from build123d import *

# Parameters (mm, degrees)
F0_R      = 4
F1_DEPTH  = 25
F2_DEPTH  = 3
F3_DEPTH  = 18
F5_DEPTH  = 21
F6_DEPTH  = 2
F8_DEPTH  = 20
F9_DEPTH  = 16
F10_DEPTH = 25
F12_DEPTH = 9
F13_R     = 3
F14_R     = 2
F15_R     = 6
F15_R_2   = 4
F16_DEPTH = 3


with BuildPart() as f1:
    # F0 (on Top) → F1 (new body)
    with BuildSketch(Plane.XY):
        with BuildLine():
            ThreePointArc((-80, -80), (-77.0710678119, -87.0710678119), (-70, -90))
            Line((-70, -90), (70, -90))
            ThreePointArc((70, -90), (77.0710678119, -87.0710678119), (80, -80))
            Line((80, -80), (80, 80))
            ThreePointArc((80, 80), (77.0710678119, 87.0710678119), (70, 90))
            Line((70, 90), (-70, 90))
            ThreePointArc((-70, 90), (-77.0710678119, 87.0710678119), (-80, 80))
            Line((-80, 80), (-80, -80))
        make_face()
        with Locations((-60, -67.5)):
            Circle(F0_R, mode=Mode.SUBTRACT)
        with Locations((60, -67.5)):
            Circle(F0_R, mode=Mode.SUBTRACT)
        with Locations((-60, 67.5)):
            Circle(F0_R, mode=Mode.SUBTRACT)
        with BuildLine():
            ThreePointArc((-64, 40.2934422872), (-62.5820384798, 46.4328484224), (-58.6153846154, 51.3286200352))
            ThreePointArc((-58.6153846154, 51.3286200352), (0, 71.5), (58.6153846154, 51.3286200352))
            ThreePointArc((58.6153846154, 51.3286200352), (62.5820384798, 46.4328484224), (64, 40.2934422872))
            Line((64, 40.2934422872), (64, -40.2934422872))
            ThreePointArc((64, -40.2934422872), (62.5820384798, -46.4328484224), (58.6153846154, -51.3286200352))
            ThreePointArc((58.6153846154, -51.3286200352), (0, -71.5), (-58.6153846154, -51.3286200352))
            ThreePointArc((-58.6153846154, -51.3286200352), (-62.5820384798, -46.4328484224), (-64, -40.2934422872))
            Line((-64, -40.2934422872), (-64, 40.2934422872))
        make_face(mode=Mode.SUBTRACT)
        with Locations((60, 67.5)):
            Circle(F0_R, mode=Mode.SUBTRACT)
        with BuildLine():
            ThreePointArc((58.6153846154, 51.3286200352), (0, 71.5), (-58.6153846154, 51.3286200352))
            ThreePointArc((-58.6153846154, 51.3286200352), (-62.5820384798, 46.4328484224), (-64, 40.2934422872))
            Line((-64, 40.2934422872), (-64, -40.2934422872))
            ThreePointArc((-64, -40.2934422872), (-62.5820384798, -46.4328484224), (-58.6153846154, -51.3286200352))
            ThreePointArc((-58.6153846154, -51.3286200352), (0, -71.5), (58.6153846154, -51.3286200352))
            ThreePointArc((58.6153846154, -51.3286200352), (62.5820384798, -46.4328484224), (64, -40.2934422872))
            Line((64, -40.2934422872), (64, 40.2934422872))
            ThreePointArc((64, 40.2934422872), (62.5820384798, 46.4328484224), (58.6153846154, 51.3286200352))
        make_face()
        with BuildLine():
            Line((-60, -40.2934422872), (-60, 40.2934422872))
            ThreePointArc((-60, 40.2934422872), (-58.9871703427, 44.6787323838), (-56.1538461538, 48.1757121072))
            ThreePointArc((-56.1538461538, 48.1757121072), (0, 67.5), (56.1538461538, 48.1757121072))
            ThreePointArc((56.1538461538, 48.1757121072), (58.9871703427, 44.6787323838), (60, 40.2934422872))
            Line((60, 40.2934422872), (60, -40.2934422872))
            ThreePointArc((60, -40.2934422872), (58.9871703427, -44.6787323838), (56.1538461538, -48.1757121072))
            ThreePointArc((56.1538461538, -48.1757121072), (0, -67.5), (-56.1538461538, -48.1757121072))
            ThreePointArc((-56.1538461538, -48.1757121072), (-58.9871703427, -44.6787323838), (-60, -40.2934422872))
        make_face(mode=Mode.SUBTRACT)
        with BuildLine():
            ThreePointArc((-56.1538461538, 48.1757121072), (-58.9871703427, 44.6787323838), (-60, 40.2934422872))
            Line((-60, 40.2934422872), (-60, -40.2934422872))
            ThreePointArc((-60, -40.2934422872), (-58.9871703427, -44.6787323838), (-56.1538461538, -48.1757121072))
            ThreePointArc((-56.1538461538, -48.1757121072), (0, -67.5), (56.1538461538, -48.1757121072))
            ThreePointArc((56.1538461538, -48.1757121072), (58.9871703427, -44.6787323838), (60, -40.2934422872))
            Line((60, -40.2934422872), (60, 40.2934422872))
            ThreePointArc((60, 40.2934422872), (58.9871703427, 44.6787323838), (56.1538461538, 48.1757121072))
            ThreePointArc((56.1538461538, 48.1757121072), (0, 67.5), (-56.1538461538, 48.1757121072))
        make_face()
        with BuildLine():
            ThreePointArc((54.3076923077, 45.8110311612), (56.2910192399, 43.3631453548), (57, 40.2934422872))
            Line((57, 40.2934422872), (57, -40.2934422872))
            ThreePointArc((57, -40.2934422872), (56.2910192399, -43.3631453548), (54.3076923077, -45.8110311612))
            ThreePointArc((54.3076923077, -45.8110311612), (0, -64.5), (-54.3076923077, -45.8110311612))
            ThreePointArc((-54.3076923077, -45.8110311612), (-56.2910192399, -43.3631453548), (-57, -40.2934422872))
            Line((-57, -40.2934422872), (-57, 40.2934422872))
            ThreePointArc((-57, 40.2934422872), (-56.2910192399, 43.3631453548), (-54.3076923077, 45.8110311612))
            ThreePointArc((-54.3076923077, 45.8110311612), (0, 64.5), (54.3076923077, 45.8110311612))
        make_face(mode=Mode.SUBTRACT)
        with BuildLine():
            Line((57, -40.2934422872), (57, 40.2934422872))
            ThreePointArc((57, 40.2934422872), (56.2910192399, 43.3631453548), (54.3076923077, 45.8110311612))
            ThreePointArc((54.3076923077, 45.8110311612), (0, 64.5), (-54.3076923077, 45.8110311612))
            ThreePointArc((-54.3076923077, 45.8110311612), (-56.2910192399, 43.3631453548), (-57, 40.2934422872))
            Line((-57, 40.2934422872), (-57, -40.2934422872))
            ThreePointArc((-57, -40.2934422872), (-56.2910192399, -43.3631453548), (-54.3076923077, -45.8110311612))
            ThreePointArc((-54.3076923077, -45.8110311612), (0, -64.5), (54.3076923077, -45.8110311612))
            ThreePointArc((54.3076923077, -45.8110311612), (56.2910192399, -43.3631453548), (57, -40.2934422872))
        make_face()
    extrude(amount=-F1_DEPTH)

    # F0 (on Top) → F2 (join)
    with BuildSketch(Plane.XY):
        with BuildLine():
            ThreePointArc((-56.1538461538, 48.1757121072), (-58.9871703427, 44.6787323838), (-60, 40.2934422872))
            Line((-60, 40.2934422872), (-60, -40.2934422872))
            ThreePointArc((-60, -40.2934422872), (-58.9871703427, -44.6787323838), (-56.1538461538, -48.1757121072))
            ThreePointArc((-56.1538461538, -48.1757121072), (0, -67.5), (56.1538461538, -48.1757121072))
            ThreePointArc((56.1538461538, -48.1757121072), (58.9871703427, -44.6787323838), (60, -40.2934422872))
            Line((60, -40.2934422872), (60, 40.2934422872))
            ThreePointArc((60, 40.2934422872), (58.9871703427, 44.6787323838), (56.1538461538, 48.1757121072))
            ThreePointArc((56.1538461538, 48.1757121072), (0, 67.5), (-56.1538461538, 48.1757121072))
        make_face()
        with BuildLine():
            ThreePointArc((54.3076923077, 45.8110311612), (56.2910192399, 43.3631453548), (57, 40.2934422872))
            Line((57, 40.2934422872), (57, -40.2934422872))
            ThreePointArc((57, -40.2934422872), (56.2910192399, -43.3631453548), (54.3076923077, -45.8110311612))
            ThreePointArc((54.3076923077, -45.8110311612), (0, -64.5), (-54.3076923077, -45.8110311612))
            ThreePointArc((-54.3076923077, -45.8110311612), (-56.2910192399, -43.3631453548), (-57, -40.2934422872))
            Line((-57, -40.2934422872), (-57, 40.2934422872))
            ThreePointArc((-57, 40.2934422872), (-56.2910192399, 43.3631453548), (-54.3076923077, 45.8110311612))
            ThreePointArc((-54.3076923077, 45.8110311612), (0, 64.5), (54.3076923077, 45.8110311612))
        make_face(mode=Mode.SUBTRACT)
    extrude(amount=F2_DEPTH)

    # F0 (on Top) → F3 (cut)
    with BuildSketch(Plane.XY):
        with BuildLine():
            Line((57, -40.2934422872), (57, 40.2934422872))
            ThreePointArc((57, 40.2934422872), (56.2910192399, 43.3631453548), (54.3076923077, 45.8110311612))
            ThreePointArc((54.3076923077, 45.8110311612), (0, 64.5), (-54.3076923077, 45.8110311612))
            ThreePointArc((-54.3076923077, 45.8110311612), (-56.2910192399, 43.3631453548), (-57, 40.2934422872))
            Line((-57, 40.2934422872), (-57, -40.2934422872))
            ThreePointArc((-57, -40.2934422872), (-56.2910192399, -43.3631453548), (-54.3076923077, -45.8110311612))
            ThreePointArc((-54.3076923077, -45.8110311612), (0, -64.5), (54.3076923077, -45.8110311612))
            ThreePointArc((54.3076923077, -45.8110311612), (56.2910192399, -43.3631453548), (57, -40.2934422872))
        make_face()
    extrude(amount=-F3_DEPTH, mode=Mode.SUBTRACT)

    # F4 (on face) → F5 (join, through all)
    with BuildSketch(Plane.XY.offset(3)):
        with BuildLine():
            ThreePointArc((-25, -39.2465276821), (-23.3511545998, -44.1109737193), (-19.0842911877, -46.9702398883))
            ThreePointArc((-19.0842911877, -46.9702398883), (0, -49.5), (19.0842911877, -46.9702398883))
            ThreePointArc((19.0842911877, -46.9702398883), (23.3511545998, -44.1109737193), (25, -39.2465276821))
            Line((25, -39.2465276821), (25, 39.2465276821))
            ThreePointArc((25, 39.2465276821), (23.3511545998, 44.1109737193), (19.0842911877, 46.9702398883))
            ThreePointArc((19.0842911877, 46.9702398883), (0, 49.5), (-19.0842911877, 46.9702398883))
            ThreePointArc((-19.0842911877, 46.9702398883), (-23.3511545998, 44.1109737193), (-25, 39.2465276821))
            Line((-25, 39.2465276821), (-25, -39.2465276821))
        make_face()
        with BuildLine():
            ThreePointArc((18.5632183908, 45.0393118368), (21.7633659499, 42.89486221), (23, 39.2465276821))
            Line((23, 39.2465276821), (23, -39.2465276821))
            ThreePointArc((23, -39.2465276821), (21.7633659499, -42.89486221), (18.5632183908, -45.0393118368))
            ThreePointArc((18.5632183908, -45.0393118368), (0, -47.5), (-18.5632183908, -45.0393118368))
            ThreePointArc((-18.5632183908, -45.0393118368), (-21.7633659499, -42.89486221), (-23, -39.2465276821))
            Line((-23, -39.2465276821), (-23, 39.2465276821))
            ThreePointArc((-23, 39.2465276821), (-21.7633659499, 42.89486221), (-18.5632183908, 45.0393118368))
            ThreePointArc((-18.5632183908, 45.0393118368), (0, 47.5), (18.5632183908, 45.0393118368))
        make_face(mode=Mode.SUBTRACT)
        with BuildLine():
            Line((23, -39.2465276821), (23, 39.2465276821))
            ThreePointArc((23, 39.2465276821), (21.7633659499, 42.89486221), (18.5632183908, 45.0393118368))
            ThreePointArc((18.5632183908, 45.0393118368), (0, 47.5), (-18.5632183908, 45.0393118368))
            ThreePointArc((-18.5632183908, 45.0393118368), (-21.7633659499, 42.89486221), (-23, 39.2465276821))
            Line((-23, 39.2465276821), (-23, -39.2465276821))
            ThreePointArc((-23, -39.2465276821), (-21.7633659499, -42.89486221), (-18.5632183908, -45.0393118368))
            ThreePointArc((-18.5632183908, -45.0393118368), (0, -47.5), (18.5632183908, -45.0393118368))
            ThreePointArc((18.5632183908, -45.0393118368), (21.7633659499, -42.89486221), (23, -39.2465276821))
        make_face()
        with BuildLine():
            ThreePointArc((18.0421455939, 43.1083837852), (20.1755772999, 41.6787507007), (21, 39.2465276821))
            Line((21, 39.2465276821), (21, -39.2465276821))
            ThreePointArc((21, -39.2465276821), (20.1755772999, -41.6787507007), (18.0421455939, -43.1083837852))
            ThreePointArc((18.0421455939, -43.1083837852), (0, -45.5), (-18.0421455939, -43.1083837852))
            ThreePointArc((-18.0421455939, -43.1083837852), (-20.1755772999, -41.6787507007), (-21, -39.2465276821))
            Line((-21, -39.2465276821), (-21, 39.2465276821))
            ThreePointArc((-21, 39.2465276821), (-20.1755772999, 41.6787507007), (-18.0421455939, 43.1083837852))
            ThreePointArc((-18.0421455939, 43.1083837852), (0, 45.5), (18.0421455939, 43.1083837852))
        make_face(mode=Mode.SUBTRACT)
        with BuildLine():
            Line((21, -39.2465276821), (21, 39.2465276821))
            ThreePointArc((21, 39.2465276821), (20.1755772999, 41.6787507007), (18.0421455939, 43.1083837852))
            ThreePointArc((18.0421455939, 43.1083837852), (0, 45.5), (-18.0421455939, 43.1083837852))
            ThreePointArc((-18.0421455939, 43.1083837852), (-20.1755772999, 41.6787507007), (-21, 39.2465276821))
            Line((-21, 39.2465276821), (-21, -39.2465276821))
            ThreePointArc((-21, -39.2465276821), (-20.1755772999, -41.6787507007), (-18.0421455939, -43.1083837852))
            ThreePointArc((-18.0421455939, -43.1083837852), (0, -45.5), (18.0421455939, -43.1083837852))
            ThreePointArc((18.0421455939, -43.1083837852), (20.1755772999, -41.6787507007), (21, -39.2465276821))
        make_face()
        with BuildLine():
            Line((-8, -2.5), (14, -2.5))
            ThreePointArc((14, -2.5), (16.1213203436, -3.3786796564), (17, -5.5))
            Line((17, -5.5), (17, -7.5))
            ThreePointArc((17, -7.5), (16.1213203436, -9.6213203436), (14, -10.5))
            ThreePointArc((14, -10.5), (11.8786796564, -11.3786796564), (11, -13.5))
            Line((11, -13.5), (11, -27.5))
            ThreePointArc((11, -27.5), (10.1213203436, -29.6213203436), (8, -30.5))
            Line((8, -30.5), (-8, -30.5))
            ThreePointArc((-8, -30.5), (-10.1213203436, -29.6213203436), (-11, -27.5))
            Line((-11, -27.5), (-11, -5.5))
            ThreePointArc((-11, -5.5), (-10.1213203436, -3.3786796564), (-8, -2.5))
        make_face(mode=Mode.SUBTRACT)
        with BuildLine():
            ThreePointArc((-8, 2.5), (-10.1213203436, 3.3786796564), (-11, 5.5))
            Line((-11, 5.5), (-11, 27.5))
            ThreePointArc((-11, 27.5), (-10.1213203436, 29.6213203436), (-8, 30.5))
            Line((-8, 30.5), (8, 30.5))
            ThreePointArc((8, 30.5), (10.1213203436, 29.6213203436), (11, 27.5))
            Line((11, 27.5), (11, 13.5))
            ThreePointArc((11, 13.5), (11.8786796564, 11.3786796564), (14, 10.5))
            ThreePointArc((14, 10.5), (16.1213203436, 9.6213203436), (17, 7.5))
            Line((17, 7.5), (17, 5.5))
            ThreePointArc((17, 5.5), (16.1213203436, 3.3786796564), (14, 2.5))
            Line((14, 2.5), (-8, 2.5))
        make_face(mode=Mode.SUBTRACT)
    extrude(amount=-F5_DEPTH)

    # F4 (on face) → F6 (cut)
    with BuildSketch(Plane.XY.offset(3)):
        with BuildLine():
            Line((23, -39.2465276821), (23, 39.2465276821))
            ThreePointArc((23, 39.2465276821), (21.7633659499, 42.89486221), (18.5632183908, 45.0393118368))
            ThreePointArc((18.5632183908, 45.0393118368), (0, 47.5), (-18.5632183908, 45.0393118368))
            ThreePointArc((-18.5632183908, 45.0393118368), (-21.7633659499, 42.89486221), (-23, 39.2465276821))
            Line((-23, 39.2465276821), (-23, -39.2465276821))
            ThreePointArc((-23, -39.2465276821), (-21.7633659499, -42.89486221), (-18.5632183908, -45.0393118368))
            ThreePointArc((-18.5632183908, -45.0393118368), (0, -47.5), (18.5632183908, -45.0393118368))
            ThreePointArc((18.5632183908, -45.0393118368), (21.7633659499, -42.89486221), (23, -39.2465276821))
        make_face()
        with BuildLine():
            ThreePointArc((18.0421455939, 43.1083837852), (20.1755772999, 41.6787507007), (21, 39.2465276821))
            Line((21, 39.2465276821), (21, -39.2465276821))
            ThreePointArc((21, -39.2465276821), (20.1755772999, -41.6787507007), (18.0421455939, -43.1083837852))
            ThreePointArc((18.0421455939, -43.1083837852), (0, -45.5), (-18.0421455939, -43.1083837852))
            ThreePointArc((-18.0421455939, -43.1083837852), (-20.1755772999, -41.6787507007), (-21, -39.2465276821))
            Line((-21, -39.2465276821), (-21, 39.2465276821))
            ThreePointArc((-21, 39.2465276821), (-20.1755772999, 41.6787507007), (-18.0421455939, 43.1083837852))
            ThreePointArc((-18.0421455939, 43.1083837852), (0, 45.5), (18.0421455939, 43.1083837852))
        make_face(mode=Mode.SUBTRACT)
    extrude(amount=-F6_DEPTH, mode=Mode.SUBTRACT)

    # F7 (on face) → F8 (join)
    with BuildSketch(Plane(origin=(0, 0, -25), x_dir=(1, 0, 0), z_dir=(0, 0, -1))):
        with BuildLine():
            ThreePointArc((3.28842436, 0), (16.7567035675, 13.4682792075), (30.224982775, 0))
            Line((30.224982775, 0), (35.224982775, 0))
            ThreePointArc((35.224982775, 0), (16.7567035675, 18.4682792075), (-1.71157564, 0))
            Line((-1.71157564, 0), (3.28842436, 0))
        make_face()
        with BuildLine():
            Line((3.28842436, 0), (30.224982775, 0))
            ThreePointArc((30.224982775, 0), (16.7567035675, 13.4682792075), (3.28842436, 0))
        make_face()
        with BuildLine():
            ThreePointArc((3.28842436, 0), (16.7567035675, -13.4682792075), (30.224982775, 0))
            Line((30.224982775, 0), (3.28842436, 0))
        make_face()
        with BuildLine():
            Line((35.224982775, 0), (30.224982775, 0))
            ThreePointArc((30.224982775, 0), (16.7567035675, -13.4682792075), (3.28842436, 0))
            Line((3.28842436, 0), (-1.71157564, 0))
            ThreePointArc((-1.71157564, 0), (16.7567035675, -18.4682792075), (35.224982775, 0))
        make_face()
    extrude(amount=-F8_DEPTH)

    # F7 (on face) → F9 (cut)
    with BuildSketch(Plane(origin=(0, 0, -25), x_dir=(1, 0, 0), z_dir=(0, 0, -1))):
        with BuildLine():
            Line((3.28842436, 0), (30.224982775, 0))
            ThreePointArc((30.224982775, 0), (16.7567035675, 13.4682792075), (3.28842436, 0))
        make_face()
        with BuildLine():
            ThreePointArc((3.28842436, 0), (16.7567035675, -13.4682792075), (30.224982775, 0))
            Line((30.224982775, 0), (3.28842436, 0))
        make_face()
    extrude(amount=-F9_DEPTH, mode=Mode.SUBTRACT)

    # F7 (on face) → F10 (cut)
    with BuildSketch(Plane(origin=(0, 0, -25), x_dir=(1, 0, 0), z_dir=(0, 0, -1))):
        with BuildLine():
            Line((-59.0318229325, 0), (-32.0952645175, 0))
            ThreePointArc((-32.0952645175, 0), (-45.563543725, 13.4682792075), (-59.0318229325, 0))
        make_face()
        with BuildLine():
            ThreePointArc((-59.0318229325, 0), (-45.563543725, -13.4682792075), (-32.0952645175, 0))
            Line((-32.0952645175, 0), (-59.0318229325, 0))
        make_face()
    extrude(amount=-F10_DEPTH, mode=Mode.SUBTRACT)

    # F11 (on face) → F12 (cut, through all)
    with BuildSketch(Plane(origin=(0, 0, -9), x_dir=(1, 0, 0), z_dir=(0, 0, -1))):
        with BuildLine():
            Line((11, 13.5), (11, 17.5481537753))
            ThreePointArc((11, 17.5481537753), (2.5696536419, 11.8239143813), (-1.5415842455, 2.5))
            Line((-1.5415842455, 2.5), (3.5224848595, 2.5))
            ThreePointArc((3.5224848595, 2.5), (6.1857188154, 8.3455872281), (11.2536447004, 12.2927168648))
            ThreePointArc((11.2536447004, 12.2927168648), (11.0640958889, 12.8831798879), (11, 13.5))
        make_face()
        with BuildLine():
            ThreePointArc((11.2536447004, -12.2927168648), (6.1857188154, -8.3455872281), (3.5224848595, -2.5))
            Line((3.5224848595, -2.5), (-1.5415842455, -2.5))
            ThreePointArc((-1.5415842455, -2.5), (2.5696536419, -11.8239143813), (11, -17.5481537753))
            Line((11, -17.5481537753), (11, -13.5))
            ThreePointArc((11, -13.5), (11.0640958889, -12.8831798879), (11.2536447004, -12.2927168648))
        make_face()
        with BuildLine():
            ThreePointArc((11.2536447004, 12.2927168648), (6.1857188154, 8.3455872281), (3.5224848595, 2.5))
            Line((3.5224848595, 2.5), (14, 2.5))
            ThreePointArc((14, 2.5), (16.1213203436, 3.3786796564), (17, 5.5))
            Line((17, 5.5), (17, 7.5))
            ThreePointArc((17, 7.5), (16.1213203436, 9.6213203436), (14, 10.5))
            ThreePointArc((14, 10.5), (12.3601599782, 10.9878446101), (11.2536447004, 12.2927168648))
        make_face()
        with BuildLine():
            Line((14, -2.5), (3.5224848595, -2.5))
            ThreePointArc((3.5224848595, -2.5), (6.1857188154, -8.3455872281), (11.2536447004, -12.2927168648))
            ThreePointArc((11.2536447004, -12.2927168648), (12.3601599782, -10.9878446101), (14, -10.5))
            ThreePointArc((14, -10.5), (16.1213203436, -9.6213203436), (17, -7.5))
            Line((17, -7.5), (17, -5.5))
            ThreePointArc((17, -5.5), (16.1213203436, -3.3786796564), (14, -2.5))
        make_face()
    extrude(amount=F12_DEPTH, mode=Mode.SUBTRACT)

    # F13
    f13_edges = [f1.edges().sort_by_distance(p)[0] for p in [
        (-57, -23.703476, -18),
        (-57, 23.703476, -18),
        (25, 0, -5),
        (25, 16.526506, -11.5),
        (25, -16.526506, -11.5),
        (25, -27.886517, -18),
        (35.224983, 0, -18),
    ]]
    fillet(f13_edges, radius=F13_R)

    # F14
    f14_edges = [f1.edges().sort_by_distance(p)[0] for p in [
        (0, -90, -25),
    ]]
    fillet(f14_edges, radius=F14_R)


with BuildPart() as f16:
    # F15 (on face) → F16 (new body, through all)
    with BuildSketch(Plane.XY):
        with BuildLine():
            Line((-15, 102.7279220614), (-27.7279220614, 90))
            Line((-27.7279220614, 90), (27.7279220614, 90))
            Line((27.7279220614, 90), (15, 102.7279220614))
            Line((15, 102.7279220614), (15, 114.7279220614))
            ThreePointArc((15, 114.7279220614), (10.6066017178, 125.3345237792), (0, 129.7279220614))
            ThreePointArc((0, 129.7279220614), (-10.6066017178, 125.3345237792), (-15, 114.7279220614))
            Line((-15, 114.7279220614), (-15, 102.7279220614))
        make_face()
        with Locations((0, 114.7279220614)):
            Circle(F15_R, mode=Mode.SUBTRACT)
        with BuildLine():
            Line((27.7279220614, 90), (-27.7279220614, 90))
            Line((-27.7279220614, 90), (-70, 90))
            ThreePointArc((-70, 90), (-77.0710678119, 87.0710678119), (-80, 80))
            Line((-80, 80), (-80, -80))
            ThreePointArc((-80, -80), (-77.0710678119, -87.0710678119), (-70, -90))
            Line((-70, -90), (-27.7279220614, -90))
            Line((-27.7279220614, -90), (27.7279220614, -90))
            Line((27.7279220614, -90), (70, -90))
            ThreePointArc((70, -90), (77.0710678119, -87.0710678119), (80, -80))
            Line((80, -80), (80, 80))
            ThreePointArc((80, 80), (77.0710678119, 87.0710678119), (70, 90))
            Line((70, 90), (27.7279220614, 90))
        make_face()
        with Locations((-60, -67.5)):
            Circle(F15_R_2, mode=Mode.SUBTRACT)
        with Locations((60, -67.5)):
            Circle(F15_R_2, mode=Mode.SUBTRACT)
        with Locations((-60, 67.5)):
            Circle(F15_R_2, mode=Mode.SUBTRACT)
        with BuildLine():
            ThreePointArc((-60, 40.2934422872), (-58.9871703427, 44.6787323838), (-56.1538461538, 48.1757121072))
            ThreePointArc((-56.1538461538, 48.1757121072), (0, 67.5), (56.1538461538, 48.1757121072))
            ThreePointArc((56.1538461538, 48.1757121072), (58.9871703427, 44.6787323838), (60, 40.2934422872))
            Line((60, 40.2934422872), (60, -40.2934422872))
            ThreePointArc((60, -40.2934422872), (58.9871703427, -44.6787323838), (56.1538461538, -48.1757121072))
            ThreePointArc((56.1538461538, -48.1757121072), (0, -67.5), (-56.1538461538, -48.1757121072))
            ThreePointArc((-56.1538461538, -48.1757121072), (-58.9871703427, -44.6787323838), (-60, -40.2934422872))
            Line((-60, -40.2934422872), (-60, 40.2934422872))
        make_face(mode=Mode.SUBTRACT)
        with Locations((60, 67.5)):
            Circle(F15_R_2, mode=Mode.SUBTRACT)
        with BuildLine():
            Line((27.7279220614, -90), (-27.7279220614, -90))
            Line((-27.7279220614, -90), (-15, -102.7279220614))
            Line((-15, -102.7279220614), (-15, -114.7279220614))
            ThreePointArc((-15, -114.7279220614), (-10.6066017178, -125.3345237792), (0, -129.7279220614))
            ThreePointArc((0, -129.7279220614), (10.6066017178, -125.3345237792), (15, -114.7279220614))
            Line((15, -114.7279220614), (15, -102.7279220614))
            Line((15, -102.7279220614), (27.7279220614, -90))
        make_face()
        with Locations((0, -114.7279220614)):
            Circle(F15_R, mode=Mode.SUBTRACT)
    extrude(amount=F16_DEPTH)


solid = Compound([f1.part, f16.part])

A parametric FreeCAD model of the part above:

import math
import FreeCAD as App
import Part
import Sketcher
from FreeCAD import Vector


def edges_at(feature, points):
    """Names of the edges that pass closest to the given points."""
    edges = feature.Shape.Edges
    near = lambda p: min(range(len(edges)), key=lambda i: edges[i].distToShape(Part.Vertex(*p))[0])
    return sorted({f"Edge{near(p) + 1}" for p in points})

doc = App.newDocument("Part")
body = doc.addObject("PartDesign::Body", "Body")

# Sketch on XY plane
sketch1 = body.newObject("Sketcher::SketchObject", "Sketch")
sketch1.AttachmentSupport = (doc.getObject("XY_Plane"), [""])
sketch1.MapMode = "FlatFace"
sketch1.addGeometry([
    Part.ArcOfCircle(Part.Circle(Vector(-70, -80, 0), Vector(0, 0, 1), 10), math.radians(180), math.radians(270)),  # 0
    Part.LineSegment(Vector(-70, -90, 0), Vector(70, -90, 0)),  # 1
    Part.ArcOfCircle(Part.Circle(Vector(70, -80, 0), Vector(0, 0, 1), 10), math.radians(-90), math.radians(0)),  # 2
    Part.LineSegment(Vector(80, -80, 0), Vector(80, 80, 0)),  # 3
    Part.ArcOfCircle(Part.Circle(Vector(70, 80, 0), Vector(0, 0, 1), 10), math.radians(0), math.radians(90)),  # 4
    Part.LineSegment(Vector(70, 90, 0), Vector(-70, 90, 0)),  # 5
    Part.ArcOfCircle(Part.Circle(Vector(-70, 80, 0), Vector(0, 0, 1), 10), math.radians(90), math.radians(180)),  # 6
    Part.LineSegment(Vector(-80, 80, 0), Vector(-80, -80, 0)),  # 7
    Part.Circle(Vector(-60, -67.5, 0), Vector(0, 0, 1), 4),  # 8
    Part.Circle(Vector(60, -67.5, 0), Vector(0, 0, 1), 4),  # 9
    Part.Circle(Vector(-60, 67.5, 0), Vector(0, 0, 1), 4),  # 10
    Part.Circle(Vector(60, 67.5, 0), Vector(0, 0, 1), 4),  # 11
], False)
sketch1.addConstraint([
    Sketcher.Constraint("Tangent", 0, 2, 1, 1),
    Sketcher.Constraint("Tangent", 1, 2, 2, 1),
    Sketcher.Constraint("Tangent", 2, 2, 3, 1),
    Sketcher.Constraint("Tangent", 3, 2, 4, 1),
    Sketcher.Constraint("Tangent", 4, 2, 5, 1),
    Sketcher.Constraint("Tangent", 5, 2, 6, 1),
    Sketcher.Constraint("Tangent", 6, 2, 7, 1),
    Sketcher.Constraint("Tangent", 7, 2, 0, 1),
    Sketcher.Constraint("Horizontal", 1),
    Sketcher.Constraint("Vertical", 3),
    Sketcher.Constraint("Horizontal", 5),
    Sketcher.Constraint("Vertical", 7),
    Sketcher.Constraint("Equal", 0, 2),
    Sketcher.Constraint("Equal", 2, 4),
    Sketcher.Constraint("Equal", 4, 6),
    Sketcher.Constraint("Equal", 8, 9),
    Sketcher.Constraint("Equal", 9, 10),
    Sketcher.Constraint("Equal", 10, 11),
    Sketcher.Constraint("Symmetric", 0, 3, 4, 3, -1, 1),
    Sketcher.Constraint("Symmetric", 9, 3, 10, 3, -1, 1),
    Sketcher.Constraint("Symmetric", 8, 3, 11, 3, -1, 1),
    Sketcher.Constraint("Symmetric", 8, 3, 9, 3, -2),
    Sketcher.Constraint("Diameter", 8, 8.0),
    Sketcher.Constraint("Radius", 0, 10.0),
    Sketcher.Constraint("DistanceX", 1, 1, 1, 2, 140.0),
    Sketcher.Constraint("DistanceY", 3, 1, 3, 2, 160.0),
    Sketcher.Constraint("DistanceX", 8, 3, -1, 1, 60.0),
    Sketcher.Constraint("DistanceY", 8, 3, 10, 3, 135.0),
])
pad1 = body.newObject("PartDesign::Pad", "Pad")
pad1.Profile = sketch1
pad1.Length = 25
pad1.Reversed = True

# Sketch on XY plane
sketch2 = body.newObject("Sketcher::SketchObject", "Sketch001")
sketch2.AttachmentSupport = (doc.getObject("XY_Plane"), [""])
sketch2.MapMode = "FlatFace"
sketch2.addGeometry([
    Part.ArcOfCircle(Part.Circle(Vector(-50, 40, 0), Vector(0, 0, 1), 10), math.radians(128), math.radians(180)),  # 0
    Part.LineSegment(Vector(-60, 40, 0), Vector(-60, -40, 0)),  # 1
    Part.ArcOfCircle(Part.Circle(Vector(-50, -40, 0), Vector(0, 0, 1), 10), math.radians(180), math.radians(232)),  # 2
    Part.ArcOfCircle(Part.Circle(Vector(0, 24, 0), Vector(0, 0, 1), 91), math.radians(-128), math.radians(-52)),  # 3
    Part.ArcOfCircle(Part.Circle(Vector(50, -40, 0), Vector(0, 0, 1), 10), math.radians(-52), math.radians(0)),  # 4
    Part.LineSegment(Vector(60, -40, 0), Vector(60, 40, 0)),  # 5
    Part.ArcOfCircle(Part.Circle(Vector(50, 40, 0), Vector(0, 0, 1), 10), math.radians(0), math.radians(52)),  # 6
    Part.ArcOfCircle(Part.Circle(Vector(0, -24, 0), Vector(0, 0, 1), 91), math.radians(52), math.radians(128)),  # 7
    Part.ArcOfCircle(Part.Circle(Vector(0, -24, 0), Vector(0, 0, 1), 88), math.radians(52), math.radians(128)),  # 8
    Part.ArcOfCircle(Part.Circle(Vector(50, 40, 0), Vector(0, 0, 1), 7), math.radians(0), math.radians(52)),  # 9
    Part.LineSegment(Vector(57, 40, 0), Vector(57, -40, 0)),  # 10
    Part.ArcOfCircle(Part.Circle(Vector(50, -40, 0), Vector(0, 0, 1), 7), math.radians(-52), math.radians(0)),  # 11
    Part.ArcOfCircle(Part.Circle(Vector(0, 24, 0), Vector(0, 0, 1), 88), math.radians(-128), math.radians(-52)),  # 12
    Part.ArcOfCircle(Part.Circle(Vector(-50, -40, 0), Vector(0, 0, 1), 7), math.radians(180), math.radians(232)),  # 13
    Part.LineSegment(Vector(-57, -40, 0), Vector(-57, 40, 0)),  # 14
    Part.ArcOfCircle(Part.Circle(Vector(-50, 40, 0), Vector(0, 0, 1), 7), math.radians(128), math.radians(180)),  # 15
], False)
sketch2.addConstraint([
    Sketcher.Constraint("Tangent", 0, 2, 1, 1),
    Sketcher.Constraint("Tangent", 1, 2, 2, 1),
    Sketcher.Constraint("Tangent", 2, 2, 3, 1),
    Sketcher.Constraint("Tangent", 3, 2, 4, 1),
    Sketcher.Constraint("Tangent", 4, 2, 5, 1),
    Sketcher.Constraint("Tangent", 5, 2, 6, 1),
    Sketcher.Constraint("Tangent", 6, 2, 7, 1),
    Sketcher.Constraint("Tangent", 7, 2, 0, 1),
    Sketcher.Constraint("Tangent", 8, 1, 9, 2),
    Sketcher.Constraint("Tangent", 9, 1, 10, 1),
    Sketcher.Constraint("Tangent", 10, 2, 11, 2),
    Sketcher.Constraint("Tangent", 11, 1, 12, 2),
    Sketcher.Constraint("Tangent", 12, 1, 13, 2),
    Sketcher.Constraint("Tangent", 13, 1, 14, 1),
    Sketcher.Constraint("Tangent", 14, 2, 15, 2),
    Sketcher.Constraint("Tangent", 15, 1, 8, 2),
    Sketcher.Constraint("Vertical", 1),
    Sketcher.Constraint("Vertical", 5),
    Sketcher.Constraint("Vertical", 10),
    Sketcher.Constraint("Vertical", 14),
    Sketcher.Constraint("Coincident", 8, 3, 7, 3),
    Sketcher.Constraint("Coincident", 9, 3, 6, 3),
    Sketcher.Constraint("Coincident", 11, 3, 4, 3),
    Sketcher.Constraint("Coincident", 12, 3, 3, 3),
    Sketcher.Constraint("Coincident", 13, 3, 2, 3),
    Sketcher.Constraint("Equal", 0, 2),
    Sketcher.Constraint("Equal", 2, 4),
    Sketcher.Constraint("Equal", 4, 6),
    Sketcher.Constraint("Equal", 3, 7),
    Sketcher.Constraint("Equal", 13, 15),
    Sketcher.Constraint("Symmetric", 0, 3, 4, 3, -1, 1),
    Sketcher.Constraint("Symmetric", 3, 3, 7, 3, -1),
    Sketcher.Constraint("Radius", 0, 10.0),
    Sketcher.Constraint("Radius", 9, 7.0),
    Sketcher.Constraint("Radius", 3, 91.25),
    Sketcher.Constraint("DistanceX", 0, 3, -1, 1, 50.0),
    Sketcher.Constraint("DistanceY", 7, 3, 3, 3, 47.5),
])
pad2 = body.newObject("PartDesign::Pad", "Pad001")
pad2.Profile = sketch2
pad2.Length = 3

# Sketch on XY plane
sketch3 = body.newObject("Sketcher::SketchObject", "Sketch002")
sketch3.AttachmentSupport = (doc.getObject("XY_Plane"), [""])
sketch3.MapMode = "FlatFace"
sketch3.addGeometry([
    Part.LineSegment(Vector(57, -40, 0), Vector(57, 40, 0)),  # 0
    Part.ArcOfCircle(Part.Circle(Vector(50, 40, 0), Vector(0, 0, 1), 7), math.radians(0), math.radians(52)),  # 1
    Part.ArcOfCircle(Part.Circle(Vector(0, -24, 0), Vector(0, 0, 1), 88), math.radians(52), math.radians(128)),  # 2
    Part.ArcOfCircle(Part.Circle(Vector(-50, 40, 0), Vector(0, 0, 1), 7), math.radians(128), math.radians(180)),  # 3
    Part.LineSegment(Vector(-57, 40, 0), Vector(-57, -40, 0)),  # 4
    Part.ArcOfCircle(Part.Circle(Vector(-50, -40, 0), Vector(0, 0, 1), 7), math.radians(180), math.radians(232)),  # 5
    Part.ArcOfCircle(Part.Circle(Vector(0, 24, 0), Vector(0, 0, 1), 88), math.radians(-128), math.radians(-52)),  # 6
    Part.ArcOfCircle(Part.Circle(Vector(50, -40, 0), Vector(0, 0, 1), 7), math.radians(-52), math.radians(0)),  # 7
], False)
sketch3.addConstraint([
    Sketcher.Constraint("Tangent", 0, 2, 1, 1),
    Sketcher.Constraint("Tangent", 1, 2, 2, 1),
    Sketcher.Constraint("Tangent", 2, 2, 3, 1),
    Sketcher.Constraint("Tangent", 3, 2, 4, 1),
    Sketcher.Constraint("Tangent", 4, 2, 5, 1),
    Sketcher.Constraint("Tangent", 5, 2, 6, 1),
    Sketcher.Constraint("Tangent", 6, 2, 7, 1),
    Sketcher.Constraint("Tangent", 7, 2, 0, 1),
    Sketcher.Constraint("Vertical", 0),
    Sketcher.Constraint("Vertical", 4),
    Sketcher.Constraint("Equal", 1, 3),
    Sketcher.Constraint("Equal", 3, 5),
    Sketcher.Constraint("Equal", 2, 6),
    Sketcher.Constraint("Equal", 5, 7),
    Sketcher.Constraint("Symmetric", 1, 3, 5, 3, -1, 1),
    Sketcher.Constraint("Symmetric", 2, 3, 6, 3, -1),
    Sketcher.Constraint("Radius", 1, 7.0),
    Sketcher.Constraint("Radius", 2, 88.25),
    Sketcher.Constraint("DistanceX", -1, 1, 1, 3, 50.0),
    Sketcher.Constraint("DistanceY", 2, 3, 6, 3, 47.5),
])
pocket1 = body.newObject("PartDesign::Pocket", "Pocket")
pocket1.Profile = sketch3
pocket1.Length = 18

# Sketch on XY plane
sketch4 = body.newObject("Sketcher::SketchObject", "Sketch003")
sketch4.AttachmentSupport = (doc.getObject("XY_Plane"), [""])
sketch4.MapMode = "FlatFace"
sketch4.AttachmentOffset = App.Placement(Vector(0, 0, 3), App.Rotation())
sketch4.addGeometry([
    Part.ArcOfCircle(Part.Circle(Vector(-17, -39.2, 0), Vector(0, 0, 1), 8), math.radians(180), math.radians(255)),  # 0
    Part.ArcOfCircle(Part.Circle(Vector(0, 23.7, 0), Vector(0, 0, 1), 73.2), math.radians(-105), math.radians(-75)),  # 1
    Part.ArcOfCircle(Part.Circle(Vector(17, -39.2, 0), Vector(0, 0, 1), 8), math.radians(-75), math.radians(0)),  # 2
    Part.LineSegment(Vector(25, -39.2, 0), Vector(25, 39.2, 0)),  # 3
    Part.ArcOfCircle(Part.Circle(Vector(17, 39.2, 0), Vector(0, 0, 1), 8), math.radians(0), math.radians(75)),  # 4
    Part.ArcOfCircle(Part.Circle(Vector(0, -23.7, 0), Vector(0, 0, 1), 73.2), math.radians(75), math.radians(105)),  # 5
    Part.ArcOfCircle(Part.Circle(Vector(-17, 39.2, 0), Vector(0, 0, 1), 8), math.radians(105), math.radians(180)),  # 6
    Part.LineSegment(Vector(-25, 39.2, 0), Vector(-25, -39.2, 0)),  # 7
    Part.ArcOfCircle(Part.Circle(Vector(-8, -5.5, 0), Vector(0, 0, 1), 3), math.radians(90), math.radians(180)),  # 8
    Part.LineSegment(Vector(-8, -2.5, 0), Vector(14, -2.5, 0)),  # 9
    Part.ArcOfCircle(Part.Circle(Vector(14, -5.5, 0), Vector(0, 0, 1), 3), math.radians(0), math.radians(90)),  # 10
    Part.LineSegment(Vector(17, -5.5, 0), Vector(17, -7.5, 0)),  # 11
    Part.ArcOfCircle(Part.Circle(Vector(14, -7.5, 0), Vector(0, 0, 1), 3), math.radians(-90), math.radians(0)),  # 12
    Part.ArcOfCircle(Part.Circle(Vector(14, -13.5, 0), Vector(0, 0, 1), 3), math.radians(90), math.radians(180)),  # 13
    Part.LineSegment(Vector(11, -13.5, 0), Vector(11, -27.5, 0)),  # 14
    Part.ArcOfCircle(Part.Circle(Vector(8, -27.5, 0), Vector(0, 0, 1), 3), math.radians(-90), math.radians(0)),  # 15
    Part.LineSegment(Vector(8, -30.5, 0), Vector(-8, -30.5, 0)),  # 16
    Part.ArcOfCircle(Part.Circle(Vector(-8, -27.5, 0), Vector(0, 0, 1), 3), math.radians(180), math.radians(270)),  # 17
    Part.LineSegment(Vector(-11, -27.5, 0), Vector(-11, -5.5, 0)),  # 18
    Part.LineSegment(Vector(14, 2.5, 0), Vector(-8, 2.5, 0)),  # 19
    Part.ArcOfCircle(Part.Circle(Vector(-8, 5.5, 0), Vector(0, 0, 1), 3), math.radians(180), math.radians(270)),  # 20
    Part.LineSegment(Vector(-11, 5.5, 0), Vector(-11, 27.5, 0)),  # 21
    Part.ArcOfCircle(Part.Circle(Vector(-8, 27.5, 0), Vector(0, 0, 1), 3), math.radians(90), math.radians(180)),  # 22
    Part.LineSegment(Vector(-8, 30.5, 0), Vector(8, 30.5, 0)),  # 23
    Part.ArcOfCircle(Part.Circle(Vector(8, 27.5, 0), Vector(0, 0, 1), 3), math.radians(0), math.radians(90)),  # 24
    Part.LineSegment(Vector(11, 27.5, 0), Vector(11, 13.5, 0)),  # 25
    Part.ArcOfCircle(Part.Circle(Vector(14, 13.5, 0), Vector(0, 0, 1), 3), math.radians(180), math.radians(270)),  # 26
    Part.ArcOfCircle(Part.Circle(Vector(14, 7.5, 0), Vector(0, 0, 1), 3), math.radians(0), math.radians(90)),  # 27
    Part.LineSegment(Vector(17, 7.5, 0), Vector(17, 5.5, 0)),  # 28
    Part.ArcOfCircle(Part.Circle(Vector(14, 5.5, 0), Vector(0, 0, 1), 3), math.radians(-90), math.radians(0)),  # 29
], False)
sketch4.addConstraint([
    Sketcher.Constraint("Tangent", 0, 2, 1, 1),
    Sketcher.Constraint("Tangent", 1, 2, 2, 1),
    Sketcher.Constraint("Tangent", 2, 2, 3, 1),
    Sketcher.Constraint("Tangent", 3, 2, 4, 1),
    Sketcher.Constraint("Tangent", 4, 2, 5, 1),
    Sketcher.Constraint("Tangent", 5, 2, 6, 1),
    Sketcher.Constraint("Tangent", 6, 2, 7, 1),
    Sketcher.Constraint("Tangent", 7, 2, 0, 1),
    Sketcher.Constraint("Tangent", 8, 1, 9, 1),
    Sketcher.Constraint("Tangent", 9, 2, 10, 2),
    Sketcher.Constraint("Tangent", 10, 1, 11, 1),
    Sketcher.Constraint("Tangent", 11, 2, 12, 2),
    Sketcher.Constraint("Tangent", 12, 1, 13, 1),
    Sketcher.Constraint("Tangent", 13, 2, 14, 1),
    Sketcher.Constraint("Tangent", 14, 2, 15, 2),
    Sketcher.Constraint("Tangent", 15, 1, 16, 1),
    Sketcher.Constraint("Tangent", 16, 2, 17, 2),
    Sketcher.Constraint("Tangent", 17, 1, 18, 1),
    Sketcher.Constraint("Tangent", 18, 2, 8, 2),
    Sketcher.Constraint("Tangent", 19, 2, 20, 2),
    Sketcher.Constraint("Tangent", 20, 1, 21, 1),
    Sketcher.Constraint("Tangent", 21, 2, 22, 2),
    Sketcher.Constraint("Tangent", 22, 1, 23, 1),
    Sketcher.Constraint("Tangent", 23, 2, 24, 2),
    Sketcher.Constraint("Tangent", 24, 1, 25, 1),
    Sketcher.Constraint("Tangent", 25, 2, 26, 1),
    Sketcher.Constraint("Tangent", 26, 2, 27, 2),
    Sketcher.Constraint("Tangent", 27, 1, 28, 1),
    Sketcher.Constraint("Tangent", 28, 2, 29, 2),
    Sketcher.Constraint("Tangent", 29, 1, 19, 1),
    Sketcher.Constraint("Vertical", 3),
    Sketcher.Constraint("Vertical", 7),
    Sketcher.Constraint("Horizontal", 9),
    Sketcher.Constraint("Vertical", 11),
    Sketcher.Constraint("Vertical", 14),
    Sketcher.Constraint("Horizontal", 16),
    Sketcher.Constraint("Vertical", 18),
    Sketcher.Constraint("Horizontal", 19),
    Sketcher.Constraint("Vertical", 21),
    Sketcher.Constraint("Horizontal", 23),
    Sketcher.Constraint("Vertical", 25),
    Sketcher.Constraint("Vertical", 28),
    Sketcher.Constraint("Equal", 0, 2),
    Sketcher.Constraint("Equal", 2, 4),
    Sketcher.Constraint("Equal", 1, 5),
    Sketcher.Constraint("Equal", 4, 6),
    Sketcher.Constraint("Equal", 8, 10),
    Sketcher.Constraint("Equal", 10, 12),
    Sketcher.Constraint("Equal", 12, 13),
    Sketcher.Constraint("Equal", 13, 15),
    Sketcher.Constraint("Equal", 15, 17),
    Sketcher.Constraint("Equal", 17, 20),
    Sketcher.Constraint("Equal", 20, 22),
    Sketcher.Constraint("Equal", 22, 24),
    Sketcher.Constraint("Equal", 24, 26),
    Sketcher.Constraint("Equal", 26, 27),
    Sketcher.Constraint("Equal", 27, 29),
    Sketcher.Constraint("Symmetric", 0, 3, 4, 3, -1, 1),
    Sketcher.Constraint("Symmetric", 15, 3, 22, 3, -1, 1),
    Sketcher.Constraint("Symmetric", 1, 3, 5, 3, -1),
    Sketcher.Constraint("Symmetric", 8, 3, 20, 3, -1),
    Sketcher.Constraint("Symmetric", 13, 3, 26, 3, -1),
    Sketcher.Constraint("Vertical", 12, 3, 13, 3),
    Sketcher.Constraint("Vertical", 26, 3, 27, 3),
    Sketcher.Constraint("Vertical", 4, 3, 10, 1),
    Sketcher.Constraint("Equal", 19, 18),
    Sketcher.Constraint("Radius", 0, 8.0),
    Sketcher.Constraint("Radius", 8, 3.0),
    Sketcher.Constraint("DistanceX", 9, 1, 9, 2, 22.0),
    Sketcher.Constraint("DistanceY", 11, 2, 11, 1, 2.0),
    Sketcher.Constraint("Radius", 1, 73.25),
    Sketcher.Constraint("DistanceY", 8, 3, 20, 3, 11.0),
    Sketcher.Constraint("DistanceY", 5, 3, 1, 3, 47.5),
])
pad3 = body.newObject("PartDesign::Pad", "Pad002")
pad3.Profile = sketch4
pad3.Type = "UpToLast"
pad3.Reversed = True

# Sketch on XY plane
sketch5 = body.newObject("Sketcher::SketchObject", "Sketch004")
sketch5.AttachmentSupport = (doc.getObject("XY_Plane"), [""])
sketch5.MapMode = "FlatFace"
sketch5.AttachmentOffset = App.Placement(Vector(0, 0, 3), App.Rotation())
sketch5.addGeometry([
    Part.LineSegment(Vector(23, -39.2, 0), Vector(23, 39.2, 0)),  # 0
    Part.ArcOfCircle(Part.Circle(Vector(17, 39.2, 0), Vector(0, 0, 1), 6), math.radians(0), math.radians(75)),  # 1
    Part.ArcOfCircle(Part.Circle(Vector(0, -23.8, 0), Vector(0, 0, 1), 71.3), math.radians(75), math.radians(105)),  # 2
    Part.ArcOfCircle(Part.Circle(Vector(-17, 39.2, 0), Vector(0, 0, 1), 6), math.radians(105), math.radians(180)),  # 3
    Part.LineSegment(Vector(-23, 39.2, 0), Vector(-23, -39.2, 0)),  # 4
    Part.ArcOfCircle(Part.Circle(Vector(-17, -39.2, 0), Vector(0, 0, 1), 6), math.radians(180), math.radians(255)),  # 5
    Part.ArcOfCircle(Part.Circle(Vector(0, 23.8, 0), Vector(0, 0, 1), 71.3), math.radians(-105), math.radians(-75)),  # 6
    Part.ArcOfCircle(Part.Circle(Vector(17, -39.2, 0), Vector(0, 0, 1), 6), math.radians(-75), math.radians(0)),  # 7
    Part.ArcOfCircle(Part.Circle(Vector(0, -23.8, 0), Vector(0, 0, 1), 69.2), math.radians(75), math.radians(105)),  # 8
    Part.ArcOfCircle(Part.Circle(Vector(17, 39.2, 0), Vector(0, 0, 1), 4), math.radians(0), math.radians(75)),  # 9
    Part.LineSegment(Vector(21, 39.2, 0), Vector(21, -39.2, 0)),  # 10
    Part.ArcOfCircle(Part.Circle(Vector(17, -39.2, 0), Vector(0, 0, 1), 4), math.radians(-75), math.radians(0)),  # 11
    Part.ArcOfCircle(Part.Circle(Vector(0, 23.8, 0), Vector(0, 0, 1), 69.2), math.radians(-105), math.radians(-75)),  # 12
    Part.ArcOfCircle(Part.Circle(Vector(-17, -39.2, 0), Vector(0, 0, 1), 4), math.radians(180), math.radians(255)),  # 13
    Part.LineSegment(Vector(-21, -39.2, 0), Vector(-21, 39.2, 0)),  # 14
    Part.ArcOfCircle(Part.Circle(Vector(-17, 39.2, 0), Vector(0, 0, 1), 4), math.radians(105), math.radians(180)),  # 15
], False)
sketch5.addConstraint([
    Sketcher.Constraint("Tangent", 0, 2, 1, 1),
    Sketcher.Constraint("Tangent", 1, 2, 2, 1),
    Sketcher.Constraint("Tangent", 2, 2, 3, 1),
    Sketcher.Constraint("Tangent", 3, 2, 4, 1),
    Sketcher.Constraint("Tangent", 4, 2, 5, 1),
    Sketcher.Constraint("Tangent", 5, 2, 6, 1),
    Sketcher.Constraint("Tangent", 6, 2, 7, 1),
    Sketcher.Constraint("Tangent", 7, 2, 0, 1),
    Sketcher.Constraint("Tangent", 8, 1, 9, 2),
    Sketcher.Constraint("Tangent", 9, 1, 10, 1),
    Sketcher.Constraint("Tangent", 10, 2, 11, 2),
    Sketcher.Constraint("Tangent", 11, 1, 12, 2),
    Sketcher.Constraint("Tangent", 12, 1, 13, 2),
    Sketcher.Constraint("Tangent", 13, 1, 14, 1),
    Sketcher.Constraint("Tangent", 14, 2, 15, 2),
    Sketcher.Constraint("Tangent", 15, 1, 8, 2),
    Sketcher.Constraint("Vertical", 0),
    Sketcher.Constraint("Vertical", 4),
    Sketcher.Constraint("Vertical", 10),
    Sketcher.Constraint("Vertical", 14),
    Sketcher.Constraint("Coincident", 8, 3, 2, 3),
    Sketcher.Constraint("Coincident", 9, 3, 1, 3),
    Sketcher.Constraint("Coincident", 11, 3, 7, 3),
    Sketcher.Constraint("Coincident", 12, 3, 6, 3),
    Sketcher.Constraint("Coincident", 13, 3, 5, 3),
    Sketcher.Constraint("Equal", 1, 3),
    Sketcher.Constraint("Equal", 3, 5),
    Sketcher.Constraint("Equal", 2, 6),
    Sketcher.Constraint("Equal", 5, 7),
    Sketcher.Constraint("Equal", 13, 15),
    Sketcher.Constraint("Symmetric", 1, 3, 5, 3, -1, 1),
    Sketcher.Constraint("Symmetric", 2, 3, 6, 3, -1),
    Sketcher.Constraint("Radius", 1, 6.0),
    Sketcher.Constraint("Radius", 9, 4.0),
    Sketcher.Constraint("Radius", 2, 71.25),
    Sketcher.Constraint("DistanceX", -1, 1, 1, 3, 17.0),
    Sketcher.Constraint("DistanceY", 2, 3, 6, 3, 47.5),
])
pocket2 = body.newObject("PartDesign::Pocket", "Pocket001")
pocket2.Profile = sketch5
pocket2.Length = 2

# Sketch on XY plane
sketch6 = body.newObject("Sketcher::SketchObject", "Sketch005")
sketch6.AttachmentSupport = (doc.getObject("XY_Plane"), [""])
sketch6.MapMode = "FlatFace"
sketch6.AttachmentOffset = App.Placement(Vector(0, 0, -25), App.Rotation())
sketch6.addGeometry(Part.Circle(Vector(17, 0, 0), Vector(0, 0, 1), 18), False)
sketch6.addConstraint([
    Sketcher.Constraint("PointOnObject", 0, 3, -1),
    Sketcher.Constraint("Diameter", 0, 36.936558),
    Sketcher.Constraint("DistanceX", -1, 1, 0, 3, 16.756704),
])
pad4 = body.newObject("PartDesign::Pad", "Pad003")
pad4.Profile = sketch6
pad4.Length = 20

# Sketch on XY plane
sketch7 = body.newObject("Sketcher::SketchObject", "Sketch006")
sketch7.AttachmentSupport = (doc.getObject("XY_Plane"), [""])
sketch7.MapMode = "FlatFace"
sketch7.AttachmentOffset = App.Placement(Vector(0, 0, -25), App.Rotation())
sketch7.addGeometry(Part.Circle(Vector(17, 0, 0), Vector(0, 0, 1), 13), False)
sketch7.addConstraint([
    Sketcher.Constraint("PointOnObject", 0, 3, -1),
    Sketcher.Constraint("Diameter", 0, 26.936558),
    Sketcher.Constraint("DistanceX", -1, 1, 0, 3, 16.756704),
])
pocket3 = body.newObject("PartDesign::Pocket", "Pocket002")
pocket3.Profile = sketch7
pocket3.Length = 16
pocket3.Reversed = True

# Sketch on XY plane
sketch8 = body.newObject("Sketcher::SketchObject", "Sketch007")
sketch8.AttachmentSupport = (doc.getObject("XY_Plane"), [""])
sketch8.MapMode = "FlatFace"
sketch8.AttachmentOffset = App.Placement(Vector(0, 0, -25), App.Rotation())
sketch8.addGeometry(Part.Circle(Vector(-46, 0, 0), Vector(0, 0, 1), 13), False)
sketch8.addConstraint([
    Sketcher.Constraint("PointOnObject", 0, 3, -1),
    Sketcher.Constraint("Diameter", 0, 26.936558),
    Sketcher.Constraint("DistanceX", 0, 3, -1, 1, 45.563544),
])
pocket4 = body.newObject("PartDesign::Pocket", "Pocket003")
pocket4.Profile = sketch8
pocket4.Length = 25
pocket4.Reversed = True

# Sketch on XY plane
sketch9 = body.newObject("Sketcher::SketchObject", "Sketch008")
sketch9.AttachmentSupport = (doc.getObject("XY_Plane"), [""])
sketch9.MapMode = "FlatFace"
sketch9.AttachmentOffset = App.Placement(Vector(0, 0, -9), App.Rotation())
sketch9.addGeometry([
    Part.LineSegment(Vector(11, -13.5, 0), Vector(11, -17.5, 0)),  # 0
    Part.ArcOfCircle(Part.Circle(Vector(16.8, 0, 0), Vector(0, 0, 1), 18.5), math.radians(-172), math.radians(-108)),  # 1
    Part.LineSegment(Vector(-1.5, -2.5, 0), Vector(14, -2.5, 0)),  # 2
    Part.ArcOfCircle(Part.Circle(Vector(14, -5.5, 0), Vector(0, 0, 1), 3), math.radians(0), math.radians(90)),  # 3
    Part.LineSegment(Vector(17, -5.5, 0), Vector(17, -7.5, 0)),  # 4
    Part.ArcOfCircle(Part.Circle(Vector(14, -7.5, 0), Vector(0, 0, 1), 3), math.radians(-90), math.radians(0)),  # 5
    Part.ArcOfCircle(Part.Circle(Vector(14, -13.5, 0), Vector(0, 0, 1), 3), math.radians(90), math.radians(156)),  # 6
    Part.ArcOfCircle(Part.Circle(Vector(14, -13.5, 0), Vector(0, 0, 1), 3), math.radians(156), math.radians(180)),  # 7
    Part.ArcOfCircle(Part.Circle(Vector(16.8, 0, 0), Vector(0, 0, 1), 18.5), math.radians(108), math.radians(172)),  # 8
    Part.LineSegment(Vector(11, 17.5, 0), Vector(11, 13.5, 0)),  # 9
    Part.ArcOfCircle(Part.Circle(Vector(14, 13.5, 0), Vector(0, 0, 1), 3), math.radians(180), math.radians(204)),  # 10
    Part.ArcOfCircle(Part.Circle(Vector(14, 13.5, 0), Vector(0, 0, 1), 3), math.radians(-156), math.radians(-90)),  # 11
    Part.ArcOfCircle(Part.Circle(Vector(14, 7.5, 0), Vector(0, 0, 1), 3), math.radians(0), math.radians(90)),  # 12
    Part.LineSegment(Vector(17, 7.5, 0), Vector(17, 5.5, 0)),  # 13
    Part.ArcOfCircle(Part.Circle(Vector(14, 5.5, 0), Vector(0, 0, 1), 3), math.radians(-90), math.radians(0)),  # 14
    Part.LineSegment(Vector(14, 2.5, 0), Vector(-1.5, 2.5, 0)),  # 15
], False)
sketch9.addConstraint([
    Sketcher.Constraint("Coincident", 0, 2, 1, 2),
    Sketcher.Constraint("Coincident", 1, 1, 2, 1),
    Sketcher.Constraint("Tangent", 2, 2, 3, 2),
    Sketcher.Constraint("Tangent", 3, 1, 4, 1),
    Sketcher.Constraint("Tangent", 4, 2, 5, 2),
    Sketcher.Constraint("Tangent", 5, 1, 6, 1),
    Sketcher.Constraint("Tangent", 6, 2, 7, 1),
    Sketcher.Constraint("Tangent", 7, 2, 0, 1),
    Sketcher.Constraint("Coincident", 8, 1, 9, 1),
    Sketcher.Constraint("Tangent", 9, 2, 10, 1),
    Sketcher.Constraint("Tangent", 10, 2, 11, 1),
    Sketcher.Constraint("Tangent", 11, 2, 12, 2),
    Sketcher.Constraint("Tangent", 12, 1, 13, 1),
    Sketcher.Constraint("Tangent", 13, 2, 14, 2),
    Sketcher.Constraint("Tangent", 14, 1, 15, 1),
    Sketcher.Constraint("Coincident", 15, 2, 8, 2),
    Sketcher.Constraint("Vertical", 0),
    Sketcher.Constraint("Horizontal", 2),
    Sketcher.Constraint("Vertical", 4),
    Sketcher.Constraint("Vertical", 9),
    Sketcher.Constraint("Vertical", 13),
    Sketcher.Constraint("Horizontal", 15),
    Sketcher.Constraint("Coincident", 8, 3, 1, 3),
    Sketcher.Constraint("Equal", 3, 5),
    Sketcher.Constraint("Equal", 5, 6),
    Sketcher.Constraint("Equal", 6, 7),
    Sketcher.Constraint("Equal", 1, 8),
    Sketcher.Constraint("Equal", 7, 10),
    Sketcher.Constraint("Equal", 10, 11),
    Sketcher.Constraint("Equal", 11, 12),
    Sketcher.Constraint("Equal", 12, 14),
    Sketcher.Constraint("Symmetric", 6, 3, 10, 3, -1),
    Sketcher.Constraint("Symmetric", 3, 3, 14, 3, -1),
    Sketcher.Constraint("PointOnObject", 1, 3, -1),
    Sketcher.Constraint("Vertical", 5, 3, 6, 3),
    Sketcher.Constraint("Vertical", 6, 2, 10, 2),
    Sketcher.Constraint("Radius", 3, 3.0),
    Sketcher.Constraint("DistanceY", 4, 2, 4, 1, 2.0),
    Sketcher.Constraint("DistanceX", -1, 1, 3, 3, 14.0),
    Sketcher.Constraint("DistanceY", 3, 3, 10, 3, 19.0),
    Sketcher.Constraint("Radius", 1, 18.468279),
    Sketcher.Constraint("DistanceX", 2, 1, 2, 2, 15.541584),
    Sketcher.Constraint("DistanceX", 15, 2, 10, 2, 12.795229),
])
pocket5 = body.newObject("PartDesign::Pocket", "Pocket004")
pocket5.Profile = sketch9
pocket5.Length = 9
doc.recompute()

fillet = body.newObject("PartDesign::Fillet", "Fillet")
fillet.Base = (pocket5, edges_at(pocket5, [
    (-57, -23.703, -18),
    (-57, 23.703, -18),
    (25, 0, -5),
    (25, 16.527, -11.5),
    (25, -16.527, -11.5),
    (25, -27.887, -18),
    (35.225, 0, -18),
]))
fillet.Radius = 3
doc.recompute()

fillet2 = body.newObject("PartDesign::Fillet", "Fillet001")
fillet2.Base = (fillet, edges_at(fillet, [(0, -90, -25)]))
fillet2.Radius = 2
body2 = doc.addObject("PartDesign::Body", "Body001")

# Sketch on XY plane
sketch10 = body2.newObject("Sketcher::SketchObject", "Sketch009")
sketch10.AttachmentSupport = (doc.getObject("XY_Plane001"), [""])
sketch10.MapMode = "FlatFace"
sketch10.addGeometry([
    Part.LineSegment(Vector(-15, 102.7, 0), Vector(-27.7, 90, 0)),  # 0
    Part.LineSegment(Vector(-27.7, 90, 0), Vector(-70, 90, 0)),  # 1
    Part.ArcOfCircle(Part.Circle(Vector(-70, 80, 0), Vector(0, 0, 1), 10), math.radians(90), math.radians(180)),  # 2
    Part.LineSegment(Vector(-80, 80, 0), Vector(-80, -80, 0)),  # 3
    Part.ArcOfCircle(Part.Circle(Vector(-70, -80, 0), Vector(0, 0, 1), 10), math.radians(180), math.radians(270)),  # 4
    Part.LineSegment(Vector(-70, -90, 0), Vector(-27.7, -90, 0)),  # 5
    Part.LineSegment(Vector(-27.7, -90, 0), Vector(-15, -102.7, 0)),  # 6
    Part.LineSegment(Vector(-15, -102.7, 0), Vector(-15, -114.7, 0)),  # 7
    Part.ArcOfCircle(Part.Circle(Vector(0, -114.7, 0), Vector(0, 0, 1), 15), math.radians(180), math.radians(360)),  # 8
    Part.LineSegment(Vector(15, -114.7, 0), Vector(15, -102.7, 0)),  # 9
    Part.LineSegment(Vector(15, -102.7, 0), Vector(27.7, -90, 0)),  # 10
    Part.LineSegment(Vector(27.7, -90, 0), Vector(70, -90, 0)),  # 11
    Part.ArcOfCircle(Part.Circle(Vector(70, -80, 0), Vector(0, 0, 1), 10), math.radians(-90), math.radians(0)),  # 12
    Part.LineSegment(Vector(80, -80, 0), Vector(80, 80, 0)),  # 13
    Part.ArcOfCircle(Part.Circle(Vector(70, 80, 0), Vector(0, 0, 1), 10), math.radians(0), math.radians(90)),  # 14
    Part.LineSegment(Vector(70, 90, 0), Vector(27.7, 90, 0)),  # 15
    Part.LineSegment(Vector(27.7, 90, 0), Vector(15, 102.7, 0)),  # 16
    Part.LineSegment(Vector(15, 102.7, 0), Vector(15, 114.7, 0)),  # 17
    Part.ArcOfCircle(Part.Circle(Vector(0, 114.7, 0), Vector(0, 0, 1), 15), math.radians(0), math.radians(180)),  # 18
    Part.LineSegment(Vector(-15, 114.7, 0), Vector(-15, 102.7, 0)),  # 19
    Part.Circle(Vector(-60, -67.5, 0), Vector(0, 0, 1), 4),  # 20
    Part.Circle(Vector(0, -114.7, 0), Vector(0, 0, 1), 6),  # 21
    Part.LineSegment(Vector(-60, -40.3, 0), Vector(-60, 40.3, 0)),  # 22
    Part.ArcOfCircle(Part.Circle(Vector(-50, 40.3, 0), Vector(0, 0, 1), 10), math.radians(128), math.radians(180)),  # 23
    Part.ArcOfCircle(Part.Circle(Vector(0, -23.8, 0), Vector(0, 0, 1), 91.2), math.radians(52), math.radians(128)),  # 24
    Part.ArcOfCircle(Part.Circle(Vector(50, 40.3, 0), Vector(0, 0, 1), 10), math.radians(0), math.radians(52)),  # 25
    Part.LineSegment(Vector(60, 40.3, 0), Vector(60, -40.3, 0)),  # 26
    Part.ArcOfCircle(Part.Circle(Vector(50, -40.3, 0), Vector(0, 0, 1), 10), math.radians(-52), math.radians(0)),  # 27
    Part.ArcOfCircle(Part.Circle(Vector(0, 23.8, 0), Vector(0, 0, 1), 91.2), math.radians(-128), math.radians(-52)),  # 28
    Part.ArcOfCircle(Part.Circle(Vector(-50, -40.3, 0), Vector(0, 0, 1), 10), math.radians(180), math.radians(232)),  # 29
    Part.Circle(Vector(60, -67.5, 0), Vector(0, 0, 1), 4),  # 30
    Part.Circle(Vector(-60, 67.5, 0), Vector(0, 0, 1), 4),  # 31
    Part.Circle(Vector(0, 114.7, 0), Vector(0, 0, 1), 6),  # 32
    Part.Circle(Vector(60, 67.5, 0), Vector(0, 0, 1), 4),  # 33
], False)
sketch10.addConstraint([
    Sketcher.Constraint("Coincident", 0, 2, 1, 1),
    Sketcher.Constraint("Tangent", 1, 2, 2, 1),
    Sketcher.Constraint("Tangent", 2, 2, 3, 1),
    Sketcher.Constraint("Tangent", 3, 2, 4, 1),
    Sketcher.Constraint("Tangent", 4, 2, 5, 1),
    Sketcher.Constraint("Coincident", 5, 2, 6, 1),
    Sketcher.Constraint("Coincident", 6, 2, 7, 1),
    Sketcher.Constraint("Tangent", 7, 2, 8, 1),
    Sketcher.Constraint("Tangent", 8, 2, 9, 1),
    Sketcher.Constraint("Coincident", 9, 2, 10, 1),
    Sketcher.Constraint("Coincident", 10, 2, 11, 1),
    Sketcher.Constraint("Tangent", 11, 2, 12, 1),
    Sketcher.Constraint("Tangent", 12, 2, 13, 1),
    Sketcher.Constraint("Tangent", 13, 2, 14, 1),
    Sketcher.Constraint("Tangent", 14, 2, 15, 1),
    Sketcher.Constraint("Coincident", 15, 2, 16, 1),
    Sketcher.Constraint("Coincident", 16, 2, 17, 1),
    Sketcher.Constraint("Tangent", 17, 2, 18, 1),
    Sketcher.Constraint("Tangent", 18, 2, 19, 1),
    Sketcher.Constraint("Coincident", 19, 2, 0, 1),
    Sketcher.Constraint("Tangent", 22, 2, 23, 2),
    Sketcher.Constraint("Tangent", 23, 1, 24, 2),
    Sketcher.Constraint("Tangent", 24, 1, 25, 2),
    Sketcher.Constraint("Tangent", 25, 1, 26, 1),
    Sketcher.Constraint("Tangent", 26, 2, 27, 2),
    Sketcher.Constraint("Tangent", 27, 1, 28, 2),
    Sketcher.Constraint("Tangent", 28, 1, 29, 2),
    Sketcher.Constraint("Tangent", 29, 1, 22, 1),
    Sketcher.Constraint("Horizontal", 1),
    Sketcher.Constraint("Vertical", 3),
    Sketcher.Constraint("Horizontal", 5),
    Sketcher.Constraint("Vertical", 7),
    Sketcher.Constraint("Vertical", 9),
    Sketcher.Constraint("Horizontal", 11),
    Sketcher.Constraint("Vertical", 13),
    Sketcher.Constraint("Horizontal", 15),
    Sketcher.Constraint("Vertical", 17),
    Sketcher.Constraint("Vertical", 19),
    Sketcher.Constraint("Vertical", 22),
    Sketcher.Constraint("Vertical", 26),
    Sketcher.Constraint("Coincident", 21, 3, 8, 3),
    Sketcher.Constraint("Coincident", 32, 3, 18, 3),
    Sketcher.Constraint("Equal", 2, 4),
    Sketcher.Constraint("Equal", 4, 12),
    Sketcher.Constraint("Equal", 12, 14),
    Sketcher.Constraint("Equal", 8, 18),
    Sketcher.Constraint("Equal", 14, 23),
    Sketcher.Constraint("Equal", 23, 25),
    Sketcher.Constraint("Equal", 25, 27),
    Sketcher.Constraint("Equal", 24, 28),
    Sketcher.Constraint("Equal", 27, 29),
    Sketcher.Constraint("Equal", 20, 30),
    Sketcher.Constraint("Equal", 30, 31),
    Sketcher.Constraint("Equal", 21, 32),
    Sketcher.Constraint("Equal", 31, 33),
    Sketcher.Constraint("Symmetric", 2, 3, 12, 3, -1, 1),
    Sketcher.Constraint("Symmetric", 8, 3, 18, 3, -1, 1),
    Sketcher.Constraint("Symmetric", 23, 3, 27, 3, -1, 1),
    Sketcher.Constraint("Symmetric", 30, 3, 31, 3, -1, 1),
    Sketcher.Constraint("Symmetric", 20, 3, 33, 3, -1, 1),
    Sketcher.Constraint("Symmetric", 5, 2, 15, 2, -1, 1),
    Sketcher.Constraint("Symmetric", 20, 3, 30, 3, -2),
    Sketcher.Constraint("Symmetric", 6, 2, 9, 2, -2),
    Sketcher.Constraint("Symmetric", 5, 2, 10, 2, -2),
    Sketcher.Constraint("Symmetric", 24, 3, 28, 3, -1),
    Sketcher.Constraint("Perpendicular", 0, 6),
    Sketcher.Constraint("Perpendicular", 6, 10),
    Sketcher.Constraint("Perpendicular", 10, 16),
    Sketcher.Constraint("Horizontal", 16, 2, 19, 2),
    Sketcher.Constraint("Vertical", 31, 3, 22, 2),
    Sketcher.Constraint("Diameter", 20, 8.0),
    Sketcher.Constraint("Diameter", 21, 12.0),
    Sketcher.Constraint("Radius", 2, 10.0),
    Sketcher.Constraint("Radius", 8, 15.0),
    Sketcher.Constraint("DistanceY", 3, 2, 3, 1, 160.0),
    Sketcher.Constraint("DistanceY", 7, 2, 7, 1, 12.0),
    Sketcher.Constraint("Radius", 24, 91.25),
    Sketcher.Constraint("Distance", 0, 18.0),
    Sketcher.Constraint("DistanceX", 2, 3, -1, 1, 70.0),
    Sketcher.Constraint("DistanceX", 20, 3, -1, 1, 60.0),
    Sketcher.Constraint("DistanceY", 20, 3, -1, 1, 67.5),
    Sketcher.Constraint("DistanceY", 24, 3, 28, 3, 47.5),
])
pad5 = body2.newObject("PartDesign::Pad", "Pad004")
pad5.Profile = sketch10
pad5.Length = 3

doc.recompute()
